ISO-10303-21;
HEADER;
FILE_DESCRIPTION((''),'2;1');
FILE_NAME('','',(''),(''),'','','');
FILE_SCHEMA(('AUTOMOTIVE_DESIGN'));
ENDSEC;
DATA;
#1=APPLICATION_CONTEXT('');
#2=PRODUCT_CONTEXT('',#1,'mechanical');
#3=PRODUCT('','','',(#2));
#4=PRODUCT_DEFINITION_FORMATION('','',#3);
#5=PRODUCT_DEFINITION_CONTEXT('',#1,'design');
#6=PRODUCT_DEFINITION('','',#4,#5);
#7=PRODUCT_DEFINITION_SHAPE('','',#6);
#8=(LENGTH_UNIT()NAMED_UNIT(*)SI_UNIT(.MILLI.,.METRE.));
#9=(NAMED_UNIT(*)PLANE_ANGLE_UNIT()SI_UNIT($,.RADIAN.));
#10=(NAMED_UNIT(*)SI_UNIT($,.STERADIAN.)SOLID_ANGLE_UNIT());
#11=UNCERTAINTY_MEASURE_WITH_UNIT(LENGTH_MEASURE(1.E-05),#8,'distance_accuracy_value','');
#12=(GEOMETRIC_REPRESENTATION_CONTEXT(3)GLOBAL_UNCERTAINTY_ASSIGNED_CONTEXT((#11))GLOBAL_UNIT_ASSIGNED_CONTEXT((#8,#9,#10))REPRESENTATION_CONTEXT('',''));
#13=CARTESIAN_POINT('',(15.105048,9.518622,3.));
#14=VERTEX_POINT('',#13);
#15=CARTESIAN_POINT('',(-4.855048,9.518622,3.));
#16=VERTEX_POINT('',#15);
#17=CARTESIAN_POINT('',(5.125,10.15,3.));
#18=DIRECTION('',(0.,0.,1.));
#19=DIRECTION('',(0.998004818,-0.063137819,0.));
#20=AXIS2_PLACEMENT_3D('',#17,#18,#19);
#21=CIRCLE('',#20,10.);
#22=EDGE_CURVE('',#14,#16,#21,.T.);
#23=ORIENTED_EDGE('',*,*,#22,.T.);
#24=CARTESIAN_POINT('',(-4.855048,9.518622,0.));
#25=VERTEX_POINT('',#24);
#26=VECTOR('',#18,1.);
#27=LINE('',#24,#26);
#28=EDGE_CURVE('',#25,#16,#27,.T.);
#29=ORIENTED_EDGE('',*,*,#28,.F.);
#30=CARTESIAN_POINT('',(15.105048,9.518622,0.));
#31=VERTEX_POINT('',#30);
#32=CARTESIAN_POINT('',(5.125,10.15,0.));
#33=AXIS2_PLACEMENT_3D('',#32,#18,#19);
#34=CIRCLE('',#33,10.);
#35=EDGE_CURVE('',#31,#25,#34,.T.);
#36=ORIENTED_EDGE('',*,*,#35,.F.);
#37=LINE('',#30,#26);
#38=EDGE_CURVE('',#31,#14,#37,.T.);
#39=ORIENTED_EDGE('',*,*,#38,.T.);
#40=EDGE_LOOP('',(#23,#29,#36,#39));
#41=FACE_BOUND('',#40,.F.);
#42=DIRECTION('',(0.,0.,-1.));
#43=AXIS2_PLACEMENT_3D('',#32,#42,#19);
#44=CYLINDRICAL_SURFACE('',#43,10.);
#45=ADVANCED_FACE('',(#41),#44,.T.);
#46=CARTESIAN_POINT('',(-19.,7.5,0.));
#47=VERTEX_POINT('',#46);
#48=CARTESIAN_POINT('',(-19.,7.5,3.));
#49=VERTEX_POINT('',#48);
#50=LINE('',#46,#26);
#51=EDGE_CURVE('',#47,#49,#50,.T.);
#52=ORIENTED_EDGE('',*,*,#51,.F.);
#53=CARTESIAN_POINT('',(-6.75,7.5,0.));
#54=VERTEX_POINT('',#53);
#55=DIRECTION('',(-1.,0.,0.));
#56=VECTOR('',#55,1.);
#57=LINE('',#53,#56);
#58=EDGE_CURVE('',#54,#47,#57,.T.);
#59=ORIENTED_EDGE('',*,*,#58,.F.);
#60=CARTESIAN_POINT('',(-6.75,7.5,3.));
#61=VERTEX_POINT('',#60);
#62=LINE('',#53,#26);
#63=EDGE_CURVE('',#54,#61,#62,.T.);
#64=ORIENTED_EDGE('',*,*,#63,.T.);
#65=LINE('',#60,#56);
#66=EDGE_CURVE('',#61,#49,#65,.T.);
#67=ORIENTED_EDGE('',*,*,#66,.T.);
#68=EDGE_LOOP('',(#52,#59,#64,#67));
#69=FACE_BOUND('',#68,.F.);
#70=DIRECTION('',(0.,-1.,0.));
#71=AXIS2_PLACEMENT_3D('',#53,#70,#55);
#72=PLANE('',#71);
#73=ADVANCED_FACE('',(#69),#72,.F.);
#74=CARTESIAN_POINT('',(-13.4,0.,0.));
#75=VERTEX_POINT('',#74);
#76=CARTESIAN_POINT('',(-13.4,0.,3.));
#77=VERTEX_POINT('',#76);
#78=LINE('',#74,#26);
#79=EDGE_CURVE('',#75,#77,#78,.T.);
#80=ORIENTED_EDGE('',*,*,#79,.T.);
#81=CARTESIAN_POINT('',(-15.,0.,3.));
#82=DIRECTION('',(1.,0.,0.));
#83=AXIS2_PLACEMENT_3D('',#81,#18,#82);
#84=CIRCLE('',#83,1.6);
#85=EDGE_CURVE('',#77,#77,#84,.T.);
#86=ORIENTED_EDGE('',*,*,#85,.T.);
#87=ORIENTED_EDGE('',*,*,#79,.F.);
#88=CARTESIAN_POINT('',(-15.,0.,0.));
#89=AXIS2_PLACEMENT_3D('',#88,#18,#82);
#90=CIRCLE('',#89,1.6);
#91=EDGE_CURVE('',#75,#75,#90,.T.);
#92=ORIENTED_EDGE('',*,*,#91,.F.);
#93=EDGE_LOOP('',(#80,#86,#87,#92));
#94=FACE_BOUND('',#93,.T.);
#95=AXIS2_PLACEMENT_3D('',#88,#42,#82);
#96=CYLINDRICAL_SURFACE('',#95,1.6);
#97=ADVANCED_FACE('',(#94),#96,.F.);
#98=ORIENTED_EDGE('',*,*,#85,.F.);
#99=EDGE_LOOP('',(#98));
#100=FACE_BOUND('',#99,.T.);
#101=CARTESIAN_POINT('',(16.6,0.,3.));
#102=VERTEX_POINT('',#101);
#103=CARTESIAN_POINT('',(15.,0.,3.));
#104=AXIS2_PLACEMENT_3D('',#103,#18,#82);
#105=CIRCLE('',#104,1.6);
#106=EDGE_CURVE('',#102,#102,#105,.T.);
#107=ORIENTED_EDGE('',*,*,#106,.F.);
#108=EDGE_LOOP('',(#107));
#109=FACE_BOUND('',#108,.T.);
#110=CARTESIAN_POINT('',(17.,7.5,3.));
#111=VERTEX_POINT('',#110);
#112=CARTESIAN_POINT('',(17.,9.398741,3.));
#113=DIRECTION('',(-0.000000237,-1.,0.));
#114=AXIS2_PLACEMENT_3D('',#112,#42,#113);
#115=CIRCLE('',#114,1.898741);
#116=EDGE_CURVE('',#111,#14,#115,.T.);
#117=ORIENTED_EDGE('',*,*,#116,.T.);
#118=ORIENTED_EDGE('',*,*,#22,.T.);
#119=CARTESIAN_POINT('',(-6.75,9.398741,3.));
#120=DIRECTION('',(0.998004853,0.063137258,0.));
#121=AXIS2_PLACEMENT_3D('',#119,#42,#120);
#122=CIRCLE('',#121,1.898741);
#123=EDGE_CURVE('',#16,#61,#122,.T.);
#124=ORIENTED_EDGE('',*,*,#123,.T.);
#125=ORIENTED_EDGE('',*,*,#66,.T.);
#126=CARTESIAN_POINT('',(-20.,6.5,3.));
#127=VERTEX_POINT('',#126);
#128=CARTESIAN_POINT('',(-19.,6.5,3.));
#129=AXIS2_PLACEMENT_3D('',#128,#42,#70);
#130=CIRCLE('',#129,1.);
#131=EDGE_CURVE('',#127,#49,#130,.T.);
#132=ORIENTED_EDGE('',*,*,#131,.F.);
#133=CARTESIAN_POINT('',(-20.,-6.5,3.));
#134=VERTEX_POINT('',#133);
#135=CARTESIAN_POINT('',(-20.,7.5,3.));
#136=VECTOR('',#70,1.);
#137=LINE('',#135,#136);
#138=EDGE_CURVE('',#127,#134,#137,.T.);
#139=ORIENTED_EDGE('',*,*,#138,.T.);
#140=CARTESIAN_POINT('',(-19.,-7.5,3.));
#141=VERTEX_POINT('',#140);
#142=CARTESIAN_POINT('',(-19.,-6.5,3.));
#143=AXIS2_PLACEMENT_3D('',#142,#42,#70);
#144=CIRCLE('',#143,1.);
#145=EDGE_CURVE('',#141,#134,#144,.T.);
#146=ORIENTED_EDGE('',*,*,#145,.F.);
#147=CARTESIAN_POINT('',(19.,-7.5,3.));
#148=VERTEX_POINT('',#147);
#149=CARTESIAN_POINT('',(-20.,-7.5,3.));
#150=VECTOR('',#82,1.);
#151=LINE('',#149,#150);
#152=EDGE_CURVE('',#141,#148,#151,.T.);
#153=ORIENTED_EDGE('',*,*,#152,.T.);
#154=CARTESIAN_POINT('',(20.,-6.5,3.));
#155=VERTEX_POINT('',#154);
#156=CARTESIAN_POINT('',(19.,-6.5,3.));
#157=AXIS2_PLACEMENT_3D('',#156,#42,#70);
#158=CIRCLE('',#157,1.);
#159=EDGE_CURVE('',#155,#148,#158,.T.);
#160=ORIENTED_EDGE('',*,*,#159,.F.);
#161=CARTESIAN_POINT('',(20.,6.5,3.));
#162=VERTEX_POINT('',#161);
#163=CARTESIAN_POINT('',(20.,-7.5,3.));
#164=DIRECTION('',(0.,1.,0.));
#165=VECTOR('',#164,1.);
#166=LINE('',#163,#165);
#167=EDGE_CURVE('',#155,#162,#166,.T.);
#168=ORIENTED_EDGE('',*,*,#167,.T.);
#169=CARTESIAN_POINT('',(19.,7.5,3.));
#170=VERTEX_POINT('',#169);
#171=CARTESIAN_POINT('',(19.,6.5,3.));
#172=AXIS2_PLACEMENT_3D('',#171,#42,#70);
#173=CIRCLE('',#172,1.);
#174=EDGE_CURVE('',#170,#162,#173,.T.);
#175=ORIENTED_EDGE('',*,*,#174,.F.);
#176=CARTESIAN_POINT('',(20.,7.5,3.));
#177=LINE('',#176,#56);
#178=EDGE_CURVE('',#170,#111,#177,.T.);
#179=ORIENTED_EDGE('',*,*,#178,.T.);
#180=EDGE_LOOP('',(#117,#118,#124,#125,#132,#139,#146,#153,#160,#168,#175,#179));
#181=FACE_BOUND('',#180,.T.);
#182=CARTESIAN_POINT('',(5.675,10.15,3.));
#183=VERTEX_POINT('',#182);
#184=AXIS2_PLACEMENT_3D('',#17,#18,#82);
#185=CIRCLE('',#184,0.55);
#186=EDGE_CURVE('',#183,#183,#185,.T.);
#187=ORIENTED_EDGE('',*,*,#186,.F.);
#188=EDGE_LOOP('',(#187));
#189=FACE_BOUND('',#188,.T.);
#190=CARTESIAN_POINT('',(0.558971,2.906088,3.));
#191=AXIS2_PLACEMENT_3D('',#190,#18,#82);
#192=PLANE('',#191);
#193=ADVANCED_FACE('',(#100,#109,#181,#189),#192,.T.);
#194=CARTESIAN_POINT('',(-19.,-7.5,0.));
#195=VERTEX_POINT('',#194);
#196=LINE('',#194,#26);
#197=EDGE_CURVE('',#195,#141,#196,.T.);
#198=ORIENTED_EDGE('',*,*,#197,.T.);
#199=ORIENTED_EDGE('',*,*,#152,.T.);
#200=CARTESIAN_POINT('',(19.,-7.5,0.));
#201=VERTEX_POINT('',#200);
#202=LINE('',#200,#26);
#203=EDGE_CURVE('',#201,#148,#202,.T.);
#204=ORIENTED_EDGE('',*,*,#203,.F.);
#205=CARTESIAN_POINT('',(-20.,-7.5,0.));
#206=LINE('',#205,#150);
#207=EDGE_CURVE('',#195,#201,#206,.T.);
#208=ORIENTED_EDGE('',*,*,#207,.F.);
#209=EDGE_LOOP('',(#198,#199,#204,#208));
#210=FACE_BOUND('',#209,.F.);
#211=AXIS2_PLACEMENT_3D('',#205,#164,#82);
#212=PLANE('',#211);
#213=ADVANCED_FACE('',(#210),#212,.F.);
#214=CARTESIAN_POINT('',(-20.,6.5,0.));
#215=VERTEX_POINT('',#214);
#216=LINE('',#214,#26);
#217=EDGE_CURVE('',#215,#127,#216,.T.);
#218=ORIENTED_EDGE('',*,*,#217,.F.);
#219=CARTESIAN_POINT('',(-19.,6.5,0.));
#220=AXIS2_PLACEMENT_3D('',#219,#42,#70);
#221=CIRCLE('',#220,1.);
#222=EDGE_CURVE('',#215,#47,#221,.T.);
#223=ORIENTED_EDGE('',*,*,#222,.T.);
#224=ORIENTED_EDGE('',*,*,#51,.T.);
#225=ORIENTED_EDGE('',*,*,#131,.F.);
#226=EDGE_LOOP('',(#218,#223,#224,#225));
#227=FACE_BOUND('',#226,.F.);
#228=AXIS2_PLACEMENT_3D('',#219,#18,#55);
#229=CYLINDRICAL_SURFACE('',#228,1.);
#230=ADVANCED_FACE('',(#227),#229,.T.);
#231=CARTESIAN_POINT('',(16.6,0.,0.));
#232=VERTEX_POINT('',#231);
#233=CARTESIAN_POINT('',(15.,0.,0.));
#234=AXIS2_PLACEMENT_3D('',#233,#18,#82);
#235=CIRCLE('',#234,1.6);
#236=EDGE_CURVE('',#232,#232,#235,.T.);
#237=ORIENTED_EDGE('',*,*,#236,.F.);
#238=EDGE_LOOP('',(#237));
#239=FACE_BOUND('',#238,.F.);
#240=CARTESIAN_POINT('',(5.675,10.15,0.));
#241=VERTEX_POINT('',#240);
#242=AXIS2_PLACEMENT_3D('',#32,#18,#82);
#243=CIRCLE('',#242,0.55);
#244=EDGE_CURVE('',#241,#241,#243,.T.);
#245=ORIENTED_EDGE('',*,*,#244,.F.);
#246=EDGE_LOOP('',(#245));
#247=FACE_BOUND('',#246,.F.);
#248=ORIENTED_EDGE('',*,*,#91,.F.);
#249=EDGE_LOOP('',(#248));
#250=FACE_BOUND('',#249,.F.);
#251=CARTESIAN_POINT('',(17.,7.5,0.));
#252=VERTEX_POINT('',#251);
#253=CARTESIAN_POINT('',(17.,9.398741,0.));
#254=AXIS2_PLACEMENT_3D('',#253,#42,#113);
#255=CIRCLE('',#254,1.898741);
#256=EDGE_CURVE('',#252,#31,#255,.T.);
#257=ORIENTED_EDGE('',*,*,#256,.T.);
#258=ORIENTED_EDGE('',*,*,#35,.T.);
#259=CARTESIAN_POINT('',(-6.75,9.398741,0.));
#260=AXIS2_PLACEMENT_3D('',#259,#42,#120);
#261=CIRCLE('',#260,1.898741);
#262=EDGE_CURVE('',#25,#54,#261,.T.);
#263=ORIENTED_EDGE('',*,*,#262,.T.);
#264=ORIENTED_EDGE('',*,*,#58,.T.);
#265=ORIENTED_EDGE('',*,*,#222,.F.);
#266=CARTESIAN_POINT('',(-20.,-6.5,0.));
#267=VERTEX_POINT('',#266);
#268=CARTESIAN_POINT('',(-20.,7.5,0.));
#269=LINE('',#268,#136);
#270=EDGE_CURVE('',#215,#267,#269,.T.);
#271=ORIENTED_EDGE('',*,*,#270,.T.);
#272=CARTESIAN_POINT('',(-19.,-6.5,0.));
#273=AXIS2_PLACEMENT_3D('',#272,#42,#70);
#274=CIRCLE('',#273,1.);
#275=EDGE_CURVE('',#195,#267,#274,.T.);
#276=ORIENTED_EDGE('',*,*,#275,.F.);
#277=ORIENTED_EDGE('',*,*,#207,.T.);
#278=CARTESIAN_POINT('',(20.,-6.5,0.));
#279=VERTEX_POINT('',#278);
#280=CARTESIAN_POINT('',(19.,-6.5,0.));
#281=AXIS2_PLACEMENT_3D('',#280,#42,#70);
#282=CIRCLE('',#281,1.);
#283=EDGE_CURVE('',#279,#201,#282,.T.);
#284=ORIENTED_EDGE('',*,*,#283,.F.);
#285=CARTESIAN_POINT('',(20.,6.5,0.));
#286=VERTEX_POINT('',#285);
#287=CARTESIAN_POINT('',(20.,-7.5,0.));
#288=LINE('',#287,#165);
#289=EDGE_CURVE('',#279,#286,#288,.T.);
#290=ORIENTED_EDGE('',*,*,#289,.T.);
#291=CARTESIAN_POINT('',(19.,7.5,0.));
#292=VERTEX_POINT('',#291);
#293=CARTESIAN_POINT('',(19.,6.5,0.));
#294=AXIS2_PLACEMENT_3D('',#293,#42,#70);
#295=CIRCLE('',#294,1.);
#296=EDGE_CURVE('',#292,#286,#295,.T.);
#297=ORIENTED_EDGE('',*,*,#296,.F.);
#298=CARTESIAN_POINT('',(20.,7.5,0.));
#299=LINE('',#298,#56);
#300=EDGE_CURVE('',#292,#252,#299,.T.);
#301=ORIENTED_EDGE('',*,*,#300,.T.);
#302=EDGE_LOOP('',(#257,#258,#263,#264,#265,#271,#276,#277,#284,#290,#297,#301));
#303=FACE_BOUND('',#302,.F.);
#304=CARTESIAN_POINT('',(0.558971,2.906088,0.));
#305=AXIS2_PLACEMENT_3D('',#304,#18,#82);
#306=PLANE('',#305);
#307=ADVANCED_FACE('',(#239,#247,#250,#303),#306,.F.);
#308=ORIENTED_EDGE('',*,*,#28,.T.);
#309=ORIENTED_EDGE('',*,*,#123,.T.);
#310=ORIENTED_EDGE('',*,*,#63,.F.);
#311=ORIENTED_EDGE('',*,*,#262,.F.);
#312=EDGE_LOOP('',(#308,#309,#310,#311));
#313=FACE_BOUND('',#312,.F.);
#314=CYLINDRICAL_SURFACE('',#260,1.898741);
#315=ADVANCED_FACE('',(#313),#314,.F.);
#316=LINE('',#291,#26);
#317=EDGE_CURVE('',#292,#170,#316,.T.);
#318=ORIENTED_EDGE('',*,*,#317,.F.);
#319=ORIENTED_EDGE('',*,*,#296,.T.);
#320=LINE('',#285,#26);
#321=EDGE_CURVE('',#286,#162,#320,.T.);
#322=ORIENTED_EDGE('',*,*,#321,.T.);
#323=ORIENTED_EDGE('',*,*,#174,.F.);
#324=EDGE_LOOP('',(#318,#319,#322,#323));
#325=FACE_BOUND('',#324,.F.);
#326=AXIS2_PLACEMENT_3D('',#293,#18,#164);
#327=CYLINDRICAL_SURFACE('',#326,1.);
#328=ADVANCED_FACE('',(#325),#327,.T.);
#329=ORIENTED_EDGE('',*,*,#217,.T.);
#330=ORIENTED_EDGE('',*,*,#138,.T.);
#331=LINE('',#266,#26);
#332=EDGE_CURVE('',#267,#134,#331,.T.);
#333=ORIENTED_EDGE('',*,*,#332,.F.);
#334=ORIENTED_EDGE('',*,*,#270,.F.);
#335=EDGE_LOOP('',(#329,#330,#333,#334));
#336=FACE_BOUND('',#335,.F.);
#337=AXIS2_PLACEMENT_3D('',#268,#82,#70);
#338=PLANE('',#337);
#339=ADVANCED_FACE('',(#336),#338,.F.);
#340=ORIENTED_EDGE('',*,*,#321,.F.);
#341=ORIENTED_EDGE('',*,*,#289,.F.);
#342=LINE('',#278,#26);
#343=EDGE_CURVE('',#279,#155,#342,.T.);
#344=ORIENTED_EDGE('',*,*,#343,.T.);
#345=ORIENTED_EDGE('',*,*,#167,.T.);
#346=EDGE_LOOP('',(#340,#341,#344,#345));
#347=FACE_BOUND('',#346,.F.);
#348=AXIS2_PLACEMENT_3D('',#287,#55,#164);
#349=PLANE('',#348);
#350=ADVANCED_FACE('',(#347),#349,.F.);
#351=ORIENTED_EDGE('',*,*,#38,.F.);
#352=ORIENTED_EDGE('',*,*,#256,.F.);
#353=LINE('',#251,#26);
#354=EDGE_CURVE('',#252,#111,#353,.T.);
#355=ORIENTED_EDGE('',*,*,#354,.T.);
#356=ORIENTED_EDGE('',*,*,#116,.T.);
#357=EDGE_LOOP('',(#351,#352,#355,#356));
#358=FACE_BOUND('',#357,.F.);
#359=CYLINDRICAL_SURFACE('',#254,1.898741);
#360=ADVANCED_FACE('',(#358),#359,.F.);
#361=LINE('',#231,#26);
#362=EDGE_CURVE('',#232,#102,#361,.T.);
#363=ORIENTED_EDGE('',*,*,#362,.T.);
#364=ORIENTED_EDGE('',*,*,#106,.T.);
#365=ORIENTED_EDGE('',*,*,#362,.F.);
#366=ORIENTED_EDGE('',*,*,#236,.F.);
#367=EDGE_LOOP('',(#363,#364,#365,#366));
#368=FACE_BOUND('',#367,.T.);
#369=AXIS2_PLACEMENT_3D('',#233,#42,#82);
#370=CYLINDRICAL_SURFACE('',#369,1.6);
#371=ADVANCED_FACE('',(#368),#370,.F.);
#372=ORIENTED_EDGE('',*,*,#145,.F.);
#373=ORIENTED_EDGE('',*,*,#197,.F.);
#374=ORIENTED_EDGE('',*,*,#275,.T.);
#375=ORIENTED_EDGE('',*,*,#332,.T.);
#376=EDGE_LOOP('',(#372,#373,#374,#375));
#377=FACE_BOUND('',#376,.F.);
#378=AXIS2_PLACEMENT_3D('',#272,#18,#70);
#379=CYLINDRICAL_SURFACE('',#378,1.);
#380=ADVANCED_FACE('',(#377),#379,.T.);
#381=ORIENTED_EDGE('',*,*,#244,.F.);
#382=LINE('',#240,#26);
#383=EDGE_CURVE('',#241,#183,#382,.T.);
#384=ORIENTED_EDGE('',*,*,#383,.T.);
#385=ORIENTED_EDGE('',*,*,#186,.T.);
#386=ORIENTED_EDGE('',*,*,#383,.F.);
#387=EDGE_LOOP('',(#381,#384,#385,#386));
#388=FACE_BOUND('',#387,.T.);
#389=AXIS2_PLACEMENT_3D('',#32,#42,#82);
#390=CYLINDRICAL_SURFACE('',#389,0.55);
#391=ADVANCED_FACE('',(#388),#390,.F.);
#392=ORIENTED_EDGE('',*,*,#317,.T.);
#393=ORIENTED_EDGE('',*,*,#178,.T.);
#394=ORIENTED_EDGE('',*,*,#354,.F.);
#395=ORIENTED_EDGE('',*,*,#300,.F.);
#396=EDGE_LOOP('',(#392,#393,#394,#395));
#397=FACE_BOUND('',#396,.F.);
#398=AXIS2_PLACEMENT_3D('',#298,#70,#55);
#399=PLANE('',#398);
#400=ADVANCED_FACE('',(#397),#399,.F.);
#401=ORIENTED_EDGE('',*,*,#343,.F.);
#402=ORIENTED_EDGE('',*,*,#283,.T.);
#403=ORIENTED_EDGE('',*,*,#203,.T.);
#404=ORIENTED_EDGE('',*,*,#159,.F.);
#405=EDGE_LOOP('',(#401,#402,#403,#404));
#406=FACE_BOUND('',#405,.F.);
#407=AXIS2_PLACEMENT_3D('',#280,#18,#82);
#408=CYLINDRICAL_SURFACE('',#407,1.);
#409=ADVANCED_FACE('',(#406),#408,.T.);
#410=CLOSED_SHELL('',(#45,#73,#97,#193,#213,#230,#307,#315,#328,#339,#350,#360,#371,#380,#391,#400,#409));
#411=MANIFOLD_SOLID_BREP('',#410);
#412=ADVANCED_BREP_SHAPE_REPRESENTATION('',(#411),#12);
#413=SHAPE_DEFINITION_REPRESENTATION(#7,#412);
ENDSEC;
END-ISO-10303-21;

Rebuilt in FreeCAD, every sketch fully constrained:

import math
import FreeCAD as App
import Part
import Sketcher

V = App.Vector
Q = App.Units.Quantity


def edges_at(feature, points):
    """Names of the edges that pass closest to the given points."""
    edges = feature.Shape.Edges
    near = lambda p: min(range(len(edges)), key=lambda i: edges[i].distToShape(Part.Vertex(*p))[0])
    return sorted({f"Edge{near(p) + 1}" for p in points})

doc = App.newDocument("Part")
body = doc.addObject("PartDesign::Body", "Body")

# Sketch on XY plane
sketch1 = body.newObject("Sketcher::SketchObject", "Sketch")
sketch1.AttachmentSupport = (doc.getObject("XY_Plane"), [""])
sketch1.MapMode = "FlatFace"
sketch1.addGeometry([
    Part.LineSegment(V(20, 7.5, 0), V(17, 7.5, 0)),  # 0
    Part.ArcOfCircle(Part.Circle(V(17, 9.4, 0), V(0, 0, 1), 1.9), math.radians(176), math.radians(270)),  # 1
    Part.ArcOfCircle(Part.Circle(V(5.1, 10.2, 0), V(0, 0, 1), 10), math.radians(-4), math.radians(184)),  # 2
    Part.ArcOfCircle(Part.Circle(V(-6.8, 9.4, 0), V(0, 0, 1), 1.9), math.radians(-90), math.radians(4)),  # 3
    Part.LineSegment(V(-6.8, 7.5, 0), V(-20, 7.5, 0)),  # 4
    Part.LineSegment(V(-20, 7.5, 0), V(-20, -7.5, 0)),  # 5
    Part.LineSegment(V(-20, -7.5, 0), V(20, -7.5, 0)),  # 6
    Part.LineSegment(V(20, -7.5, 0), V(20, 7.5, 0)),  # 7
    Part.Circle(V(-15, 0, 0), V(0, 0, 1), 1.6),  # 8
    Part.Circle(V(15, 0, 0), V(0, 0, 1), 1.6),  # 9
    Part.Circle(V(5.1, 10.2, 0), V(0, 0, 1), 0.6),  # 10
], False)
sketch1.addConstraint([
    Sketcher.Constraint("Tangent", 0, 2, 1, 2),
    Sketcher.Constraint("Tangent", 1, 1, 2, 1),
    Sketcher.Constraint("Tangent", 2, 2, 3, 2),
    Sketcher.Constraint("Tangent", 3, 1, 4, 1),
    Sketcher.Constraint("Coincident", 4, 2, 5, 1),
    Sketcher.Constraint("Coincident", 5, 2, 6, 1),
    Sketcher.Constraint("Coincident", 6, 2, 7, 1),
    Sketcher.Constraint("Coincident", 7, 2, 0, 1),
    Sketcher.Constraint("Horizontal", 0),
    Sketcher.Constraint("Horizontal", 4),
    Sketcher.Constraint("Vertical", 5),
    Sketcher.Constraint("Horizontal", 6),
    Sketcher.Constraint("Vertical", 7),
    Sketcher.Constraint("Coincident", 10, 3, 2, 3),
    Sketcher.Constraint("Equal", 1, 3),
    Sketcher.Constraint("Equal", 8, 9),
    Sketcher.Constraint("Symmetric", 8, 3, 9, 3, -1, 1),
    Sketcher.Constraint("Symmetric", 4, 2, 6, 2, -1, 1),
    Sketcher.Constraint("PointOnObject", 8, 3, -1),
    Sketcher.Constraint("Horizontal", 1, 3, 3, 3),
    Sketcher.Constraint("Radius", 2, Q("10 mm")),
    Sketcher.Constraint("Diameter", 8, Q("3.2 mm")),
    Sketcher.Constraint("Diameter", 10, Q("1.1 mm")),
    Sketcher.Constraint("DistanceX", 0, 2, 0, 1, Q("3 mm")),
    Sketcher.Constraint("DistanceX", 6, 1, 6, 2, Q("40 mm")),
    Sketcher.Constraint("DistanceY", 5, 2, 5, 1, Q("15 mm")),
    Sketcher.Constraint("DistanceX", 8, 3, -1, 1, Q("15 mm")),
    Sketcher.Constraint("DistanceX", 4, 2, 4, 1, Q("13.25 mm")),
    Sketcher.Constraint("DistanceY", -1, 1, 2, 3, Q("10.15 mm")),
])
pad1 = body.newObject("PartDesign::Pad", "Pad")
pad1.Profile = sketch1
pad1.Length = 3
doc.recompute()

fillet = body.newObject("PartDesign::Fillet", "Fillet")
fillet.Base = (pad1, edges_at(pad1, [
    (20, -7.5, 1.5),
    (20, 7.5, 1.5),
    (-20, -7.5, 1.5),
    (-20, 7.5, 1.5),
]))
fillet.Radius = 1

doc.recompute()
